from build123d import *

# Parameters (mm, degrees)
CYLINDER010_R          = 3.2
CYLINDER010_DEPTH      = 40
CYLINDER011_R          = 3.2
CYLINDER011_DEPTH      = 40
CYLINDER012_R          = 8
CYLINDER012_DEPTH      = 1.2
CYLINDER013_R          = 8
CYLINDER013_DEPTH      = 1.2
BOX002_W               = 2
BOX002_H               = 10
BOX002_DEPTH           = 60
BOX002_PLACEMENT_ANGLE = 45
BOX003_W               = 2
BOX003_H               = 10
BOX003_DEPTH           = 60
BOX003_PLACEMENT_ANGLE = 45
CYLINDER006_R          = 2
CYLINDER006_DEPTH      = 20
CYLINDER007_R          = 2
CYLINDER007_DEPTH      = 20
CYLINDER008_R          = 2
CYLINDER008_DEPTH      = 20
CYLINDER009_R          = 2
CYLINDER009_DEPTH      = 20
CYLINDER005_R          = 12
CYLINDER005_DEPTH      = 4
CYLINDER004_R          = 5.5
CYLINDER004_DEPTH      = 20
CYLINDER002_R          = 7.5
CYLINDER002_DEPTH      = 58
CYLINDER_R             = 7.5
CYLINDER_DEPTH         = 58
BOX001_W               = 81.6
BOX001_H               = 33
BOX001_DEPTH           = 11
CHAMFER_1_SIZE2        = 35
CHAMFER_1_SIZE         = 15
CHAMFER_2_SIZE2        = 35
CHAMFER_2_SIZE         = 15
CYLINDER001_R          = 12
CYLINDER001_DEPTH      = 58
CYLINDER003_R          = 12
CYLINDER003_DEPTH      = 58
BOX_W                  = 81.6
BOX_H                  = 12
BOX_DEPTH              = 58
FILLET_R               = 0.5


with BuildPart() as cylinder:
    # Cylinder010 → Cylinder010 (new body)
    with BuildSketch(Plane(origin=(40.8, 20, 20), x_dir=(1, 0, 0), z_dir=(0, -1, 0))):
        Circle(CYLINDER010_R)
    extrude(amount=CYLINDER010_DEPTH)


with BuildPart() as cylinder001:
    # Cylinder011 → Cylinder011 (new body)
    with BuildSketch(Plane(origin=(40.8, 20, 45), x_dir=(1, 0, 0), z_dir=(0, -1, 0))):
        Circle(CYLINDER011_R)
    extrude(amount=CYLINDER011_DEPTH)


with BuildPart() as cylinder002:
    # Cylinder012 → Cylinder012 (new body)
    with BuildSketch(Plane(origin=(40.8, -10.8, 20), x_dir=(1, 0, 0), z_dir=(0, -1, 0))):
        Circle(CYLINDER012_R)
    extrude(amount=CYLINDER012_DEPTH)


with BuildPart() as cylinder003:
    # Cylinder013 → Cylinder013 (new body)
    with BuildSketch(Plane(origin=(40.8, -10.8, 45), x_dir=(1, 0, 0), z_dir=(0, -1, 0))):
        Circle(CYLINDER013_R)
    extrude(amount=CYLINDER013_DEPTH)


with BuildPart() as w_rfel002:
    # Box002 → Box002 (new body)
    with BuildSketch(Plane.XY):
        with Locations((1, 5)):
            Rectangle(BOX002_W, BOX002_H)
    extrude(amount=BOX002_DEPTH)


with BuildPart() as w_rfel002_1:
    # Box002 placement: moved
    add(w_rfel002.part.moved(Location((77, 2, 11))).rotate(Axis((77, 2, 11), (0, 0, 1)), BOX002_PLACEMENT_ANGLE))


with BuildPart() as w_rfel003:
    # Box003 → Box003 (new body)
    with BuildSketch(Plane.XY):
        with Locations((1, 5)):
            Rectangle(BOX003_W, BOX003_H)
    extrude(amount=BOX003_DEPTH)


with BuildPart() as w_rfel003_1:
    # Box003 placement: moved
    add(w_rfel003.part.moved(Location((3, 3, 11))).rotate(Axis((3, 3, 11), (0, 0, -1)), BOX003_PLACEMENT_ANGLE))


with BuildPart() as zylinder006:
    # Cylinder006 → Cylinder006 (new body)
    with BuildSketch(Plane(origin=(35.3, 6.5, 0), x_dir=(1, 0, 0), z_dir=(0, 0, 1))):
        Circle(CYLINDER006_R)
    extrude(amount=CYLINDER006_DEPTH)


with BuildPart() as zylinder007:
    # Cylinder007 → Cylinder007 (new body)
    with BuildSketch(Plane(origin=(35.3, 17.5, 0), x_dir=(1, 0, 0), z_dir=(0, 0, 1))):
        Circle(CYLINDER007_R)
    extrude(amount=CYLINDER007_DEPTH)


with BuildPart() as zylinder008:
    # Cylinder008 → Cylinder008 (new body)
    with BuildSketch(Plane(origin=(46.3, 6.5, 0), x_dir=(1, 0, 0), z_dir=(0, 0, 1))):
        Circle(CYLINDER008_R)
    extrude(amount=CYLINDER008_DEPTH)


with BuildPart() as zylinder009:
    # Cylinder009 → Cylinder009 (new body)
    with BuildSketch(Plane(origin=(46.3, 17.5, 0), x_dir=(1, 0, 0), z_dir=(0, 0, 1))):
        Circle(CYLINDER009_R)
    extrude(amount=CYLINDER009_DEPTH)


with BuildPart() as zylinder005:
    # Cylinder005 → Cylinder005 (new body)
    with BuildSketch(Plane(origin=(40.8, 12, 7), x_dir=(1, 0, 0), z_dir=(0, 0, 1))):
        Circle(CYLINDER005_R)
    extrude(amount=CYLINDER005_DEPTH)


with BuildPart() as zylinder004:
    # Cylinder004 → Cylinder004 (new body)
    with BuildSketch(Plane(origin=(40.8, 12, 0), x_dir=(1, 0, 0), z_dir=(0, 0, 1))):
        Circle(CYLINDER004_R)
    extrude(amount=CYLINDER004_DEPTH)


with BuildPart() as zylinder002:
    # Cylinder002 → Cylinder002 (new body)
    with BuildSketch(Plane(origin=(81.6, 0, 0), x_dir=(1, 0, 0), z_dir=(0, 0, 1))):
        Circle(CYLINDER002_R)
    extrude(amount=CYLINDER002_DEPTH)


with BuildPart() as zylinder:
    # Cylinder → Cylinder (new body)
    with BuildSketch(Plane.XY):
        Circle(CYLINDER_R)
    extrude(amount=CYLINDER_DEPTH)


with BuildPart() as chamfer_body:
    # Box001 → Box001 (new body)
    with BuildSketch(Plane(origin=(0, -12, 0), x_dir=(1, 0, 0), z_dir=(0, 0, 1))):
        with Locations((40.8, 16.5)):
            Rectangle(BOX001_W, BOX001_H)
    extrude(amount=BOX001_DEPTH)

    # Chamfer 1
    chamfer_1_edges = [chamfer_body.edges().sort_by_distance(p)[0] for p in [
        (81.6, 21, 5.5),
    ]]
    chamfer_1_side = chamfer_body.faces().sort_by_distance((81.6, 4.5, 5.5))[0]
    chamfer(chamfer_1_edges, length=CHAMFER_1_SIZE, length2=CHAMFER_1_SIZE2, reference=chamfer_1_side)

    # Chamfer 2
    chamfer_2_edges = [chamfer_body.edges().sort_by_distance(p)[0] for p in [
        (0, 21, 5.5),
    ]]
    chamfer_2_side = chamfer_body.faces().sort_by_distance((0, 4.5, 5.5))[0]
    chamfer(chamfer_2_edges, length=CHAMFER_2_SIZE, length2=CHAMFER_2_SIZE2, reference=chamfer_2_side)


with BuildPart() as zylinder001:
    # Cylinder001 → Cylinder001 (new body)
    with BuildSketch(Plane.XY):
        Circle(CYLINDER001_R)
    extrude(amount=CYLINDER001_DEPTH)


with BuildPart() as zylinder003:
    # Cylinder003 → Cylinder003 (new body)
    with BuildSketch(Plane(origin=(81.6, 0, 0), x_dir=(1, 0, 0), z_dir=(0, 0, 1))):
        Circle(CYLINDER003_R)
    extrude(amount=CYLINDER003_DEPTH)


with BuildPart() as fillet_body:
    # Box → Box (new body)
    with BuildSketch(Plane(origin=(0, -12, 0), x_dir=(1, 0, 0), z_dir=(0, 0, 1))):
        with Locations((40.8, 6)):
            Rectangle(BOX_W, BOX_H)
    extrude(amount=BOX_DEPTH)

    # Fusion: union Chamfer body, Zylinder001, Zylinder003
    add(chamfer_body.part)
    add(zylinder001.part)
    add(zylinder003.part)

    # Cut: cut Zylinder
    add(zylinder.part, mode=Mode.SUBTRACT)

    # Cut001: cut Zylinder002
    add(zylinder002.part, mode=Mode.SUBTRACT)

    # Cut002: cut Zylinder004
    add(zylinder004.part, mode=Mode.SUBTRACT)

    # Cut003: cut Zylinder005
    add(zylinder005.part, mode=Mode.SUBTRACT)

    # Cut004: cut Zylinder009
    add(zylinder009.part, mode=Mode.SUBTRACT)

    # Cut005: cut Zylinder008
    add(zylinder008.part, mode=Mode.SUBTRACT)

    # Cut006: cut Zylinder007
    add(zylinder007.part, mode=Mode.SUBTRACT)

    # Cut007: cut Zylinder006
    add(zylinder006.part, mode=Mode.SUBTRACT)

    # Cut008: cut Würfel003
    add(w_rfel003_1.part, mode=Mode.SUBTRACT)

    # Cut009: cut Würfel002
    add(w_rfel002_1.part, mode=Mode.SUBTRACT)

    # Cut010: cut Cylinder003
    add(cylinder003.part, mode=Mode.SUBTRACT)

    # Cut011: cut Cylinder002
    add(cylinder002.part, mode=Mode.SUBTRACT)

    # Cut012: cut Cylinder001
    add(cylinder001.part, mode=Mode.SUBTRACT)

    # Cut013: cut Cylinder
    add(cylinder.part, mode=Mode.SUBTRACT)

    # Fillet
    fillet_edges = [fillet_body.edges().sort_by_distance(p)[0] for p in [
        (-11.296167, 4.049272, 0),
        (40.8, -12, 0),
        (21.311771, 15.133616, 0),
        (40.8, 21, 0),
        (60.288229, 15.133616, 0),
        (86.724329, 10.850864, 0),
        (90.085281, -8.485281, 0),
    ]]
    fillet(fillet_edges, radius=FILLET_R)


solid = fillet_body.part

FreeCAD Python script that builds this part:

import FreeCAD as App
import Part
import Sketcher
from FreeCAD import Vector
Q = App.Units.Quantity


def edges_at(feature, points):
    """Names of the edges that pass closest to the given points."""
    edges = feature.Shape.Edges
    near = lambda p: min(range(len(edges)), key=lambda i: edges[i].distToShape(Part.Vertex(*p))[0])
    return sorted({f"Edge{near(p) + 1}" for p in points})

doc = App.newDocument("Part")
body = doc.addObject("PartDesign::Body", "Body")

# Sketch on XZ plane
sketch1 = body.newObject("Sketcher::SketchObject", "Sketch")
sketch1.AttachmentSupport = (doc.getObject("XZ_Plane"), [""])
sketch1.MapMode = "FlatFace"
sketch1.AttachmentOffset = App.Placement(Vector(0, 0, -20), App.Rotation())
sketch1.addGeometry(Part.Circle(Vector(40.8, 20, 0), Vector(0, 0, 1), 3.2), False)
sketch1.addConstraint([
    Sketcher.Constraint("Diameter", 0, Q("6.4 mm")),
    Sketcher.Constraint("DistanceY", -1, 1, 0, 3, Q("20 mm")),
    Sketcher.Constraint("DistanceX", -1, 1, 0, 3, Q("40.8 mm")),
])
pad1 = body.newObject("PartDesign::Pad", "Pad")
pad1.Profile = sketch1
pad1.Length = 40
body2 = doc.addObject("PartDesign::Body", "Body001")

# Sketch on XZ plane
sketch2 = body2.newObject("Sketcher::SketchObject", "Sketch001")
sketch2.AttachmentSupport = (doc.getObject("XZ_Plane001"), [""])
sketch2.MapMode = "FlatFace"
sketch2.AttachmentOffset = App.Placement(Vector(0, 0, -20), App.Rotation())
sketch2.addGeometry(Part.Circle(Vector(40.8, 45, 0), Vector(0, 0, 1), 3.2), False)
sketch2.addConstraint([
    Sketcher.Constraint("Diameter", 0, Q("6.4 mm")),
    Sketcher.Constraint("DistanceY", -1, 1, 0, 3, Q("45 mm")),
    Sketcher.Constraint("DistanceX", -1, 1, 0, 3, Q("40.8 mm")),
])
pad2 = body2.newObject("PartDesign::Pad", "Pad001")
pad2.Profile = sketch2
pad2.Length = 40
body3 = doc.addObject("PartDesign::Body", "Body002")

# Sketch on XZ plane
sketch3 = body3.newObject("Sketcher::SketchObject", "Sketch002")
sketch3.AttachmentSupport = (doc.getObject("XZ_Plane002"), [""])
sketch3.MapMode = "FlatFace"
sketch3.AttachmentOffset = App.Placement(Vector(0, 0, 10.8), App.Rotation())
sketch3.addGeometry(Part.Circle(Vector(40.8, 20, 0), Vector(0, 0, 1), 8), False)
sketch3.addConstraint([
    Sketcher.Constraint("Diameter", 0, Q("16 mm")),
    Sketcher.Constraint("DistanceY", -1, 1, 0, 3, Q("20 mm")),
    Sketcher.Constraint("DistanceX", -1, 1, 0, 3, Q("40.8 mm")),
])
pad3 = body3.newObject("PartDesign::Pad", "Pad002")
pad3.Profile = sketch3
pad3.Length = 1.2
body4 = doc.addObject("PartDesign::Body", "Body003")

# Sketch on XZ plane
sketch4 = body4.newObject("Sketcher::SketchObject", "Sketch003")
sketch4.AttachmentSupport = (doc.getObject("XZ_Plane003"), [""])
sketch4.MapMode = "FlatFace"
sketch4.AttachmentOffset = App.Placement(Vector(0, 0, 10.8), App.Rotation())
sketch4.addGeometry(Part.Circle(Vector(40.8, 45, 0), Vector(0, 0, 1), 8), False)
sketch4.addConstraint([
    Sketcher.Constraint("Diameter", 0, Q("16 mm")),
    Sketcher.Constraint("DistanceY", -1, 1, 0, 3, Q("45 mm")),
    Sketcher.Constraint("DistanceX", -1, 1, 0, 3, Q("40.8 mm")),
])
pad4 = body4.newObject("PartDesign::Pad", "Pad003")
pad4.Profile = sketch4
pad4.Length = 1.2
body5 = doc.addObject("PartDesign::Body", "Body004")

# Sketch on XY plane
sketch5 = body5.newObject("Sketcher::SketchObject", "Sketch004")
sketch5.AttachmentSupport = (doc.getObject("XY_Plane004"), [""])
sketch5.MapMode = "FlatFace"
sketch5.addGeometry([
    Part.LineSegment(Vector(0, 10, 0), Vector(0, 0, 0)),
    Part.LineSegment(Vector(0, 0, 0), Vector(2, 0, 0)),
    Part.LineSegment(Vector(2, 0, 0), Vector(2, 10, 0)),
    Part.LineSegment(Vector(2, 10, 0), Vector(0, 10, 0)),
], False)
sketch5.addConstraint([
    Sketcher.Constraint("Coincident", 0, 2, 1, 1),
    Sketcher.Constraint("Coincident", 1, 2, 2, 1),
    Sketcher.Constraint("Coincident", 2, 2, 3, 1),
    Sketcher.Constraint("Coincident", 3, 2, 0, 1),
    Sketcher.Constraint("Vertical", 0),
    Sketcher.Constraint("Horizontal", 1),
    Sketcher.Constraint("Vertical", 2),
    Sketcher.Constraint("Horizontal", 3),
    Sketcher.Constraint("Coincident", 0, 2, -1, 1),
    Sketcher.Constraint("DistanceX", 1, 1, 1, 2, Q("2 mm")),
    Sketcher.Constraint("DistanceY", 0, 2, 0, 1, Q("10 mm")),
])
pad5 = body5.newObject("PartDesign::Pad", "Pad004")
pad5.Profile = sketch5
pad5.Length = 60
body6 = doc.addObject("PartDesign::Body", "Body005")
doc.recompute()

body5.Placement = App.Placement(Vector(77, 2, 11), App.Rotation(Vector(0, 0, 1), 45))
boolean = body6.newObject("PartDesign::Boolean", "Boolean")
boolean.Type = "Fuse"
boolean.addObjects([body5])
body7 = doc.addObject("PartDesign::Body", "Body006")

# Sketch on XY plane
sketch6 = body7.newObject("Sketcher::SketchObject", "Sketch005")
sketch6.AttachmentSupport = (doc.getObject("XY_Plane006"), [""])
sketch6.MapMode = "FlatFace"
sketch6.addGeometry([
    Part.LineSegment(Vector(0, 10, 0), Vector(0, 0, 0)),
    Part.LineSegment(Vector(0, 0, 0), Vector(2, 0, 0)),
    Part.LineSegment(Vector(2, 0, 0), Vector(2, 10, 0)),
    Part.LineSegment(Vector(2, 10, 0), Vector(0, 10, 0)),
], False)
sketch6.addConstraint([
    Sketcher.Constraint("Coincident", 0, 2, 1, 1),
    Sketcher.Constraint("Coincident", 1, 2, 2, 1),
    Sketcher.Constraint("Coincident", 2, 2, 3, 1),
    Sketcher.Constraint("Coincident", 3, 2, 0, 1),
    Sketcher.Constraint("Vertical", 0),
    Sketcher.Constraint("Horizontal", 1),
    Sketcher.Constraint("Vertical", 2),
    Sketcher.Constraint("Horizontal", 3),
    Sketcher.Constraint("Coincident", 0, 2, -1, 1),
    Sketcher.Constraint("DistanceX", 1, 1, 1, 2, Q("2 mm")),
    Sketcher.Constraint("DistanceY", 0, 2, 0, 1, Q("10 mm")),
])
pad6 = body7.newObject("PartDesign::Pad", "Pad005")
pad6.Profile = sketch6
pad6.Length = 60
body8 = doc.addObject("PartDesign::Body", "Body007")
doc.recompute()

body7.Placement = App.Placement(Vector(3, 3, 11), App.Rotation(Vector(0, 0, -1), 45))
boolean2 = body8.newObject("PartDesign::Boolean", "Boolean001")
boolean2.Type = "Fuse"
boolean2.addObjects([body7])
body9 = doc.addObject("PartDesign::Body", "Body008")

# Sketch on XY plane
sketch7 = body9.newObject("Sketcher::SketchObject", "Sketch006")
sketch7.AttachmentSupport = (doc.getObject("XY_Plane008"), [""])
sketch7.MapMode = "FlatFace"
sketch7.addGeometry(Part.Circle(Vector(35.3, 6.5, 0), Vector(0, 0, 1), 2), False)
sketch7.addConstraint([
    Sketcher.Constraint("Diameter", 0, Q("4 mm")),
    Sketcher.Constraint("DistanceX", -1, 1, 0, 3, Q("35.3 mm")),
    Sketcher.Constraint("DistanceY", -1, 1, 0, 3, Q("6.5 mm")),
])
pad7 = body9.newObject("PartDesign::Pad", "Pad006")
pad7.Profile = sketch7
pad7.Length = 20
body10 = doc.addObject("PartDesign::Body", "Body009")

# Sketch on XY plane
sketch8 = body10.newObject("Sketcher::SketchObject", "Sketch007")
sketch8.AttachmentSupport = (doc.getObject("XY_Plane009"), [""])
sketch8.MapMode = "FlatFace"
sketch8.addGeometry(Part.Circle(Vector(35.3, 17.5, 0), Vector(0, 0, 1), 2), False)
sketch8.addConstraint([
    Sketcher.Constraint("Diameter", 0, Q("4 mm")),
    Sketcher.Constraint("DistanceX", -1, 1, 0, 3, Q("35.3 mm")),
    Sketcher.Constraint("DistanceY", -1, 1, 0, 3, Q("17.5 mm")),
])
pad8 = body10.newObject("PartDesign::Pad", "Pad007")
pad8.Profile = sketch8
pad8.Length = 20
body11 = doc.addObject("PartDesign::Body", "Body010")

# Sketch on XY plane
sketch9 = body11.newObject("Sketcher::SketchObject", "Sketch008")
sketch9.AttachmentSupport = (doc.getObject("XY_Plane010"), [""])
sketch9.MapMode = "FlatFace"
sketch9.addGeometry(Part.Circle(Vector(46.3, 6.5, 0), Vector(0, 0, 1), 2), False)
sketch9.addConstraint([
    Sketcher.Constraint("Diameter", 0, Q("4 mm")),
    Sketcher.Constraint("DistanceX", -1, 1, 0, 3, Q("46.3 mm")),
    Sketcher.Constraint("DistanceY", -1, 1, 0, 3, Q("6.5 mm")),
])
pad9 = body11.newObject("PartDesign::Pad", "Pad008")
pad9.Profile = sketch9
pad9.Length = 20
body12 = doc.addObject("PartDesign::Body", "Body011")

# Sketch on XY plane
sketch10 = body12.newObject("Sketcher::SketchObject", "Sketch009")
sketch10.AttachmentSupport = (doc.getObject("XY_Plane011"), [""])
sketch10.MapMode = "FlatFace"
sketch10.addGeometry(Part.Circle(Vector(46.3, 17.5, 0), Vector(0, 0, 1), 2), False)
sketch10.addConstraint([
    Sketcher.Constraint("Diameter", 0, Q("4 mm")),
    Sketcher.Constraint("DistanceX", -1, 1, 0, 3, Q("46.3 mm")),
    Sketcher.Constraint("DistanceY", -1, 1, 0, 3, Q("17.5 mm")),
])
pad10 = body12.newObject("PartDesign::Pad", "Pad009")
pad10.Profile = sketch10
pad10.Length = 20
body13 = doc.addObject("PartDesign::Body", "Body012")

# Sketch on XY plane
sketch11 = body13.newObject("Sketcher::SketchObject", "Sketch010")
sketch11.AttachmentSupport = (doc.getObject("XY_Plane012"), [""])
sketch11.MapMode = "FlatFace"
sketch11.AttachmentOffset = App.Placement(Vector(0, 0, 7), App.Rotation())
sketch11.addGeometry(Part.Circle(Vector(40.8, 12, 0), Vector(0, 0, 1), 12), False)
sketch11.addConstraint([
    Sketcher.Constraint("Diameter", 0, Q("24 mm")),
    Sketcher.Constraint("DistanceY", -1, 1, 0, 3, Q("12 mm")),
    Sketcher.Constraint("DistanceX", -1, 1, 0, 3, Q("40.8 mm")),
])
pad11 = body13.newObject("PartDesign::Pad", "Pad010")
pad11.Profile = sketch11
pad11.Length = 4
body14 = doc.addObject("PartDesign::Body", "Body013")

# Sketch on XY plane
sketch12 = body14.newObject("Sketcher::SketchObject", "Sketch011")
sketch12.AttachmentSupport = (doc.getObject("XY_Plane013"), [""])
sketch12.MapMode = "FlatFace"
sketch12.addGeometry(Part.Circle(Vector(40.8, 12, 0), Vector(0, 0, 1), 5.5), False)
sketch12.addConstraint([
    Sketcher.Constraint("Diameter", 0, Q("11 mm")),
    Sketcher.Constraint("DistanceY", -1, 1, 0, 3, Q("12 mm")),
    Sketcher.Constraint("DistanceX", -1, 1, 0, 3, Q("40.8 mm")),
])
pad12 = body14.newObject("PartDesign::Pad", "Pad011")
pad12.Profile = sketch12
pad12.Length = 20
body15 = doc.addObject("PartDesign::Body", "Body014")

# Sketch on XY plane
sketch13 = body15.newObject("Sketcher::SketchObject", "Sketch012")
sketch13.AttachmentSupport = (doc.getObject("XY_Plane014"), [""])
sketch13.MapMode = "FlatFace"
sketch13.addGeometry(Part.Circle(Vector(81.6, 0, 0), Vector(0, 0, 1), 7.5), False)
sketch13.addConstraint([
    Sketcher.Constraint("PointOnObject", 0, 3, -1),
    Sketcher.Constraint("Diameter", 0, Q("15 mm")),
    Sketcher.Constraint("DistanceX", -1, 1, 0, 3, Q("81.6 mm")),
])
pad13 = body15.newObject("PartDesign::Pad", "Pad012")
pad13.Profile = sketch13
pad13.Length = 58
body16 = doc.addObject("PartDesign::Body", "Body015")

# Sketch on XY plane
sketch14 = body16.newObject("Sketcher::SketchObject", "Sketch013")
sketch14.AttachmentSupport = (doc.getObject("XY_Plane015"), [""])
sketch14.MapMode = "FlatFace"
sketch14.addGeometry(Part.Circle(Vector(0, 0, 0), Vector(0, 0, 1), 7.5), False)
sketch14.addConstraint([
    Sketcher.Constraint("Coincident", 0, 3, -1, 1),
    Sketcher.Constraint("Diameter", 0, Q("15 mm")),
])
pad14 = body16.newObject("PartDesign::Pad", "Pad013")
pad14.Profile = sketch14
pad14.Length = 58
body17 = doc.addObject("PartDesign::Body", "Body016")

# Sketch on XY plane
sketch15 = body17.newObject("Sketcher::SketchObject", "Sketch014")
sketch15.AttachmentSupport = (doc.getObject("XY_Plane016"), [""])
sketch15.MapMode = "FlatFace"
sketch15.addGeometry([
    Part.LineSegment(Vector(0, 21, 0), Vector(0, -12, 0)),
    Part.LineSegment(Vector(0, -12, 0), Vector(81.6, -12, 0)),
    Part.LineSegment(Vector(81.6, -12, 0), Vector(81.6, 21, 0)),
    Part.LineSegment(Vector(81.6, 21, 0), Vector(0, 21, 0)),
], False)
sketch15.addConstraint([
    Sketcher.Constraint("Coincident", 0, 2, 1, 1),
    Sketcher.Constraint("Coincident", 1, 2, 2, 1),
    Sketcher.Constraint("Coincident", 2, 2, 3, 1),
    Sketcher.Constraint("Coincident", 3, 2, 0, 1),
    Sketcher.Constraint("Vertical", 0),
    Sketcher.Constraint("Horizontal", 1),
    Sketcher.Constraint("Vertical", 2),
    Sketcher.Constraint("Horizontal", 3),
    Sketcher.Constraint("PointOnObject", 0, 2, -2),
    Sketcher.Constraint("DistanceY", 0, 2, 0, 1, Q("33 mm")),
    Sketcher.Constraint("DistanceX", 1, 1, 1, 2, Q("81.6 mm")),
    Sketcher.Constraint("DistanceY", 0, 2, -1, 1, Q("12 mm")),
])
pad15 = body17.newObject("PartDesign::Pad", "Pad014")
pad15.Profile = sketch15
pad15.Length = 11
doc.recompute()

chamfer = body17.newObject("PartDesign::Chamfer", "Chamfer")
chamfer.Base = (pad15, edges_at(pad15, [(81.6, 21, 5.5)]))
chamfer.ChamferType = "Two distances"
chamfer.Size = 15
chamfer.Size2 = 35
doc.recompute()

chamfer2 = body17.newObject("PartDesign::Chamfer", "Chamfer001")
chamfer2.Base = (chamfer, edges_at(chamfer, [(0, 21, 5.5)]))
chamfer2.ChamferType = "Two distances"
chamfer2.Size = 15
chamfer2.Size2 = 35
chamfer2.FlipDirection = True
body18 = doc.addObject("PartDesign::Body", "Body017")

# Sketch on XY plane
sketch16 = body18.newObject("Sketcher::SketchObject", "Sketch015")
sketch16.AttachmentSupport = (doc.getObject("XY_Plane017"), [""])
sketch16.MapMode = "FlatFace"
sketch16.addGeometry(Part.Circle(Vector(0, 0, 0), Vector(0, 0, 1), 12), False)
sketch16.addConstraint([
    Sketcher.Constraint("Coincident", 0, 3, -1, 1),
    Sketcher.Constraint("Diameter", 0, Q("24 mm")),
])
pad16 = body18.newObject("PartDesign::Pad", "Pad015")
pad16.Profile = sketch16
pad16.Length = 58
body19 = doc.addObject("PartDesign::Body", "Body018")

# Sketch on XY plane
sketch17 = body19.newObject("Sketcher::SketchObject", "Sketch016")
sketch17.AttachmentSupport = (doc.getObject("XY_Plane018"), [""])
sketch17.MapMode = "FlatFace"
sketch17.addGeometry(Part.Circle(Vector(81.6, 0, 0), Vector(0, 0, 1), 12), False)
sketch17.addConstraint([
    Sketcher.Constraint("PointOnObject", 0, 3, -1),
    Sketcher.Constraint("Diameter", 0, Q("24 mm")),
    Sketcher.Constraint("DistanceX", -1, 1, 0, 3, Q("81.6 mm")),
])
pad17 = body19.newObject("PartDesign::Pad", "Pad016")
pad17.Profile = sketch17
pad17.Length = 58
body20 = doc.addObject("PartDesign::Body", "Body019")

# Sketch on XY plane
sketch18 = body20.newObject("Sketcher::SketchObject", "Sketch017")
sketch18.AttachmentSupport = (doc.getObject("XY_Plane019"), [""])
sketch18.MapMode = "FlatFace"
sketch18.addGeometry([
    Part.LineSegment(Vector(0, 0, 0), Vector(0, -12, 0)),
    Part.LineSegment(Vector(0, -12, 0), Vector(81.6, -12, 0)),
    Part.LineSegment(Vector(81.6, -12, 0), Vector(81.6, 0, 0)),
    Part.LineSegment(Vector(81.6, 0, 0), Vector(0, 0, 0)),
], False)
sketch18.addConstraint([
    Sketcher.Constraint("Coincident", 0, 2, 1, 1),
    Sketcher.Constraint("Coincident", 1, 2, 2, 1),
    Sketcher.Constraint("Coincident", 2, 2, 3, 1),
    Sketcher.Constraint("Coincident", 3, 2, 0, 1),
    Sketcher.Constraint("Vertical", 0),
    Sketcher.Constraint("Horizontal", 1),
    Sketcher.Constraint("Vertical", 2),
    Sketcher.Constraint("Horizontal", 3),
    Sketcher.Constraint("Coincident", 3, 2, -1, 1),
    Sketcher.Constraint("DistanceY", 0, 2, 0, 1, Q("12 mm")),
    Sketcher.Constraint("DistanceX", 1, 1, 1, 2, Q("81.6 mm")),
])
pad18 = body20.newObject("PartDesign::Pad", "Pad017")
pad18.Profile = sketch18
pad18.Length = 58
doc.recompute()

boolean3 = body20.newObject("PartDesign::Boolean", "Boolean002")
boolean3.Type = "Fuse"
boolean3.addObjects([body17])
doc.recompute()

boolean4 = body20.newObject("PartDesign::Boolean", "Boolean003")
boolean4.Type = "Fuse"
boolean4.addObjects([body18])
doc.recompute()

boolean5 = body20.newObject("PartDesign::Boolean", "Boolean004")
boolean5.Type = "Fuse"
boolean5.addObjects([body19])
doc.recompute()

boolean6 = body20.newObject("PartDesign::Boolean", "Boolean005")
boolean6.Type = "Cut"
boolean6.addObjects([body16])
doc.recompute()

boolean7 = body20.newObject("PartDesign::Boolean", "Boolean006")
boolean7.Type = "Cut"
boolean7.addObjects([body15])
doc.recompute()

boolean8 = body20.newObject("PartDesign::Boolean", "Boolean007")
boolean8.Type = "Cut"
boolean8.addObjects([body14])
doc.recompute()

boolean9 = body20.newObject("PartDesign::Boolean", "Boolean008")
boolean9.Type = "Cut"
boolean9.addObjects([body13])
doc.recompute()

boolean10 = body20.newObject("PartDesign::Boolean", "Boolean009")
boolean10.Type = "Cut"
boolean10.addObjects([body12])
doc.recompute()

boolean11 = body20.newObject("PartDesign::Boolean", "Boolean010")
boolean11.Type = "Cut"
boolean11.addObjects([body11])
doc.recompute()

boolean12 = body20.newObject("PartDesign::Boolean", "Boolean011")
boolean12.Type = "Cut"
boolean12.addObjects([body10])
doc.recompute()

boolean13 = body20.newObject("PartDesign::Boolean", "Boolean012")
boolean13.Type = "Cut"
boolean13.addObjects([body9])
doc.recompute()

boolean14 = body20.newObject("PartDesign::Boolean", "Boolean013")
boolean14.Type = "Cut"
boolean14.addObjects([body8])
doc.recompute()

boolean15 = body20.newObject("PartDesign::Boolean", "Boolean014")
boolean15.Type = "Cut"
boolean15.addObjects([body6])
doc.recompute()

boolean16 = body20.newObject("PartDesign::Boolean", "Boolean015")
boolean16.Type = "Cut"
boolean16.addObjects([body4])
doc.recompute()

boolean17 = body20.newObject("PartDesign::Boolean", "Boolean016")
boolean17.Type = "Cut"
boolean17.addObjects([body3])
doc.recompute()

boolean18 = body20.newObject("PartDesign::Boolean", "Boolean017")
boolean18.Type = "Cut"
boolean18.addObjects([body2])
doc.recompute()

boolean19 = body20.newObject("PartDesign::Boolean", "Boolean018")
boolean19.Type = "Cut"
boolean19.addObjects([body])
doc.recompute()

fillet = body20.newObject("PartDesign::Fillet", "Fillet")
fillet.Base = (boolean19, edges_at(boolean19, [
    (-11.296, 4.049, 0),
    (40.8, -12, 0),
    (21.312, 15.134, 0),
    (40.8, 21, 0),
    (60.288, 15.134, 0),
    (92.896, 4.049, 0),
    (92.896, 4.049, 0),
]))
fillet.Radius = 0.5

doc.recompute()
